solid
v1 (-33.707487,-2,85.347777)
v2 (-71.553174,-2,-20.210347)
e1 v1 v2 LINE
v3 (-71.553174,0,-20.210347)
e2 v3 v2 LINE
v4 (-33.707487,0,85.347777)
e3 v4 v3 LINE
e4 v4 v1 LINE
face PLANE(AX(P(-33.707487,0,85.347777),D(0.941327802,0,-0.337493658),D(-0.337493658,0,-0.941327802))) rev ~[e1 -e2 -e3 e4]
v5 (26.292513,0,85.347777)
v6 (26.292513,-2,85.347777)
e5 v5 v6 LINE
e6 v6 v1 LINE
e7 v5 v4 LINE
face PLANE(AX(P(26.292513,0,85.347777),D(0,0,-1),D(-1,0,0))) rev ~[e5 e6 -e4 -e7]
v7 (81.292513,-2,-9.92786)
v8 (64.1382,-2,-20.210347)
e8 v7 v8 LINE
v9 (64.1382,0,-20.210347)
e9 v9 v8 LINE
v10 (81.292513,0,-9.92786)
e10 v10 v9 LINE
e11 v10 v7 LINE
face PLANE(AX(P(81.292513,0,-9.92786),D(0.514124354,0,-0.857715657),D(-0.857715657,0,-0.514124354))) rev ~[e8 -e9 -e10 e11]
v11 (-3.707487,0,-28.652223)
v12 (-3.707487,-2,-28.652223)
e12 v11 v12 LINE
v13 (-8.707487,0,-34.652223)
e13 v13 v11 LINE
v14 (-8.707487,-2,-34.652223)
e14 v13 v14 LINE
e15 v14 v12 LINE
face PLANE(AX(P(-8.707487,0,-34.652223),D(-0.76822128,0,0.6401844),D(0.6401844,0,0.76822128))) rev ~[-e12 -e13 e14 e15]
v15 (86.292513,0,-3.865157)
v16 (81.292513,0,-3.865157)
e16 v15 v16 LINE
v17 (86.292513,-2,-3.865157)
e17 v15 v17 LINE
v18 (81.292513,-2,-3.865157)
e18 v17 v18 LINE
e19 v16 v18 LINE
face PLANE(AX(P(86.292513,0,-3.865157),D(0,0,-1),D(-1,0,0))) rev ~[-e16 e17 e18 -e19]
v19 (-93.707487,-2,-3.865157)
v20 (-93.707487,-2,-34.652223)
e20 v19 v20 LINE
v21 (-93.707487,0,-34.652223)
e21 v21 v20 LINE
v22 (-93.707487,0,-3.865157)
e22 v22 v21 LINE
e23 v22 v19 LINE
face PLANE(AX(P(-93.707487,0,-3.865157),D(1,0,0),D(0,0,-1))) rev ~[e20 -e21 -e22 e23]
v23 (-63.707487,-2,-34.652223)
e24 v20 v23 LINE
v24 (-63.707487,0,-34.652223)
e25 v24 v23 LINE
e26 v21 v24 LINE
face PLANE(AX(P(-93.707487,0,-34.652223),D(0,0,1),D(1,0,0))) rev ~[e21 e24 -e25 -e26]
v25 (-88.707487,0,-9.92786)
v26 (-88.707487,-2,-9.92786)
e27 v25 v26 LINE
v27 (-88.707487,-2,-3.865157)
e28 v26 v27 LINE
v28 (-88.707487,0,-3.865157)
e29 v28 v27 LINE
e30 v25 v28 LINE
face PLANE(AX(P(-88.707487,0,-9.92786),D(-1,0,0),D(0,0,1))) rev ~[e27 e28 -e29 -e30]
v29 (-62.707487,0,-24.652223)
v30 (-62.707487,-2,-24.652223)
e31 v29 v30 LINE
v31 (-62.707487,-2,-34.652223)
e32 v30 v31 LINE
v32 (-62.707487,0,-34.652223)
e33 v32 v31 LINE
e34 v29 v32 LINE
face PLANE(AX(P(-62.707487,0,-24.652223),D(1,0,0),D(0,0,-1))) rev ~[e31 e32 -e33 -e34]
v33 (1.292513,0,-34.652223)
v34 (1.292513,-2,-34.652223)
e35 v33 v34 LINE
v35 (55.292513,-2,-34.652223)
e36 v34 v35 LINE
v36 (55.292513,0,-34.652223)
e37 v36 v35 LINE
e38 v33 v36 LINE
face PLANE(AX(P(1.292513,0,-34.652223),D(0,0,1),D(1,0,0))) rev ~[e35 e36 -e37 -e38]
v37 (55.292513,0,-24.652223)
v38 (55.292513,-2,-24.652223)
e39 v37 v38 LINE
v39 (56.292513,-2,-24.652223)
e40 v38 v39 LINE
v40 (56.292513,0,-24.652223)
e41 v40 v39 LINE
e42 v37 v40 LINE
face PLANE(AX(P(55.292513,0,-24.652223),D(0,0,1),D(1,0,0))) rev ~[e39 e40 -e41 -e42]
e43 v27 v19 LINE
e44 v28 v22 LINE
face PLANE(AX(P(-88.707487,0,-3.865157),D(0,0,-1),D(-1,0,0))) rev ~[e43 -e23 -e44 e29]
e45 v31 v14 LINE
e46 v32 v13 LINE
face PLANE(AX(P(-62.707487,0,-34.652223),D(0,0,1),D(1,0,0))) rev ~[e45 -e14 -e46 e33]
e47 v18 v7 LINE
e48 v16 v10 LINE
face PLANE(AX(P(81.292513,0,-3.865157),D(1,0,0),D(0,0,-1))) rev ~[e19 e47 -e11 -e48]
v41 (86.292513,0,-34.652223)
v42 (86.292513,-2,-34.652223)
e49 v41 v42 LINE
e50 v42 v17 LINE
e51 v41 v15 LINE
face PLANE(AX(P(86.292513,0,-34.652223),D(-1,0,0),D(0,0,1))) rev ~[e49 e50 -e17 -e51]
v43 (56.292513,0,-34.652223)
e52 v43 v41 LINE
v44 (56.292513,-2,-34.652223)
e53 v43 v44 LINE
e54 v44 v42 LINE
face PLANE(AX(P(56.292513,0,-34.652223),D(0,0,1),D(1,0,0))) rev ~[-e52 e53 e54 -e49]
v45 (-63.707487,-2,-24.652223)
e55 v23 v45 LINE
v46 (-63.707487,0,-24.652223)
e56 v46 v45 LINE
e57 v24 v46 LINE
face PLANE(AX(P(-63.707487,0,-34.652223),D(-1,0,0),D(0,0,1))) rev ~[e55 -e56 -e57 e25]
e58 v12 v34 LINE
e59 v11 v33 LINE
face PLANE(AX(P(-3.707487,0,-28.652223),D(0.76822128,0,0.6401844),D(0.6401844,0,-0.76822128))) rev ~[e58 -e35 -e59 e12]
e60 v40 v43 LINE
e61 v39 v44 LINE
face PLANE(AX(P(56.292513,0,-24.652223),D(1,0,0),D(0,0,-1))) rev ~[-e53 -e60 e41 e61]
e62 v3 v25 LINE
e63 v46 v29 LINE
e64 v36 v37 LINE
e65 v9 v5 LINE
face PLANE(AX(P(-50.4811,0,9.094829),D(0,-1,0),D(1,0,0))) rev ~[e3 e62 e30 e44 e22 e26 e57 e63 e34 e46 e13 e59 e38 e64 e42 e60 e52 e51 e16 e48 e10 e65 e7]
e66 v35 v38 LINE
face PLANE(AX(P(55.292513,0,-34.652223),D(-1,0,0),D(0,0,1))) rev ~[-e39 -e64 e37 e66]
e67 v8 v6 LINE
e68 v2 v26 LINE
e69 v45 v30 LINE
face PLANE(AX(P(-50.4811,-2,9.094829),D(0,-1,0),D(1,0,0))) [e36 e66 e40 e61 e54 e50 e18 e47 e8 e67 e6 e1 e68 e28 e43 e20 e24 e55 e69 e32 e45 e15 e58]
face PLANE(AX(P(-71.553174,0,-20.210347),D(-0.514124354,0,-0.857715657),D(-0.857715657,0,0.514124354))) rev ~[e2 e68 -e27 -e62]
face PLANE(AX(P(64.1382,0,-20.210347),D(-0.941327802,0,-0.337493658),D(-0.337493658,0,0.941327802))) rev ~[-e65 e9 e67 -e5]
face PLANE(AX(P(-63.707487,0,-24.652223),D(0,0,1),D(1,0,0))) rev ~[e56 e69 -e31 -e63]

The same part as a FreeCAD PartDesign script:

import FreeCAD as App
import Part
import Sketcher
from FreeCAD import Vector
Q = App.Units.Quantity


def add_polygon(sketch, points):
    """Adds a closed chain of lines whose ends are joined by coincident constraints."""
    first, n = sketch.GeometryCount, len(points)
    for a, b in zip(points, points[1:] + points[:1]):
        sketch.addGeometry(Part.LineSegment(App.Vector(*a, 0), App.Vector(*b, 0)), False)
    for i in range(n):
        sketch.addConstraint(Sketcher.Constraint("Coincident", first + i, 2, first + (i + 1) % n, 1))

doc = App.newDocument("Part")
body = doc.addObject("PartDesign::Body", "Body")

sketch1 = doc.addObject("Sketcher::SketchObject", "Sketch")
body.addObject(sketch1)
sketch1.AttachmentSupport = (doc.XZ_Plane, [""])
sketch1.MapMode = "FlatFace"
add_polygon(sketch1, [(-33.7, 85.3), (-71.6, -20.2), (-88.7, -9.9), (-88.7, -3.9), (-93.7, -3.9), (-93.7, -34.7), (-63.7, -34.7), (-63.7, -24.7), (-62.7, -24.7), (-62.7, -34.7), (-8.7, -34.7), (-3.7, -28.7), (1.3, -34.7), (55.3, -34.7), (55.3, -24.7), (56.3, -24.7), (56.3, -34.7), (86.3, -34.7), (86.3, -3.9), (81.3, -3.9), (81.3, -9.9), (64.1, -20.2), (26.3, 85.3)])
sketch1.addConstraint(Sketcher.Constraint("Vertical", 2))
sketch1.addConstraint(Sketcher.Constraint("Horizontal", 3))
sketch1.addConstraint(Sketcher.Constraint("Vertical", 4))
sketch1.addConstraint(Sketcher.Constraint("Horizontal", 5))
sketch1.addConstraint(Sketcher.Constraint("Vertical", 6))
sketch1.addConstraint(Sketcher.Constraint("Horizontal", 7))
sketch1.addConstraint(Sketcher.Constraint("Vertical", 8))
sketch1.addConstraint(Sketcher.Constraint("Horizontal", 9))
sketch1.addConstraint(Sketcher.Constraint("Horizontal", 12))
sketch1.addConstraint(Sketcher.Constraint("Vertical", 13))
sketch1.addConstraint(Sketcher.Constraint("Horizontal", 14))
sketch1.addConstraint(Sketcher.Constraint("Vertical", 15))
sketch1.addConstraint(Sketcher.Constraint("Horizontal", 16))
sketch1.addConstraint(Sketcher.Constraint("Vertical", 17))
sketch1.addConstraint(Sketcher.Constraint("Horizontal", 18))
sketch1.addConstraint(Sketcher.Constraint("Vertical", 19))
sketch1.addConstraint(Sketcher.Constraint("Horizontal", 22))
sketch1.addConstraint(Sketcher.Constraint("Horizontal", 5, 2, 8, 2))
sketch1.addConstraint(Sketcher.Constraint("Horizontal", 9, 2, 11, 2))
sketch1.addConstraint(Sketcher.Constraint("Horizontal", 7, 2, 13, 2))
sketch1.addConstraint(Sketcher.Constraint("Horizontal", 12, 2, 15, 2))
sketch1.addConstraint(Sketcher.Constraint("Horizontal", 3, 2, 17, 2))
sketch1.addConstraint(Sketcher.Constraint("Horizontal", 1, 2, 19, 2))
sketch1.addConstraint(Sketcher.Constraint("Horizontal", 0, 2, 20, 2))
sketch1.addConstraint(Sketcher.Constraint("Equal", 9, 12))
sketch1.addConstraint(Sketcher.Constraint("Equal", 7, 14))
sketch1.addConstraint(Sketcher.Constraint("Equal", 5, 16))
sketch1.addConstraint(Sketcher.Constraint("Equal", 3, 18))
sketch1.addConstraint(Sketcher.Constraint("Equal", 10, 11))
sketch1.addConstraint(Sketcher.Constraint("Equal", 1, 20))
sketch1.addConstraint(Sketcher.Constraint("Equal", 0, 21))
sketch1.addConstraint(Sketcher.Constraint("DistanceX", 3, 2, 3, 1, Q("5 mm")))
sketch1.addConstraint(Sketcher.Constraint("DistanceX", 5, 1, 5, 2, Q("30 mm")))
sketch1.addConstraint(Sketcher.Constraint("DistanceX", 7, 1, 7, 2, Q("1 mm")))
sketch1.addConstraint(Sketcher.Constraint("DistanceX", 9, 1, 9, 2, Q("54 mm")))
sketch1.addConstraint(Sketcher.Constraint("DistanceX", 22, 2, 22, 1, Q("60 mm")))
sketch1.addConstraint(Sketcher.Constraint("DistanceY", 6, 1, 6, 2, Q("10 mm")))
sketch1.addConstraint(Sketcher.Constraint("Distance", 1, Q("20 mm")))
sketch1.addConstraint(Sketcher.Constraint("DistanceX", 9, 2, 10, 2, Q("5 mm")))
sketch1.addConstraint(Sketcher.Constraint("DistanceY", 9, 2, 10, 2, Q("6 mm")))
sketch1.addConstraint(Sketcher.Constraint("DistanceY", 13, 2, 21, 2, Q("110 mm")))
sketch1.addConstraint(Sketcher.Constraint("DistanceX", -1, 1, 20, 2, Q("64.1382 mm")))
sketch1.addConstraint(Sketcher.Constraint("DistanceY", 2, 1, 2, 2, Q("6.062703 mm")))
sketch1.addConstraint(Sketcher.Constraint("DistanceY", 4, 2, 4, 1, Q("30.787066 mm")))
sketch1.addConstraint(Sketcher.Constraint("DistanceY", 1, 2, -1, 1, Q("9.92786 mm")))
sketch1.addConstraint(Sketcher.Constraint("DistanceY", 0, 2, 2, 2, Q("16.34519 mm")))
pad1 = doc.addObject("PartDesign::Pad", "Pad")
body.addObject(pad1)
pad1.Profile = sketch1
pad1.Length = 2

doc.recompute()
